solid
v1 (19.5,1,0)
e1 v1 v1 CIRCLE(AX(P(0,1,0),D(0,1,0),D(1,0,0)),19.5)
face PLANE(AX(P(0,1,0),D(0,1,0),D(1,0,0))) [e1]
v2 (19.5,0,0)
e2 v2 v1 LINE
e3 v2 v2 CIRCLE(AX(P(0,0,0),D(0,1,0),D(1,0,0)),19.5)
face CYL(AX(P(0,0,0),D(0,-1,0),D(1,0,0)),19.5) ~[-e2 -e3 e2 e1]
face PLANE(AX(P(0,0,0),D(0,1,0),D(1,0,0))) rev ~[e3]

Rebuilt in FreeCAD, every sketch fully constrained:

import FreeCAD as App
import Part
import Sketcher
from FreeCAD import Vector
Q = App.Units.Quantity

doc = App.newDocument("Part")
params = doc.addObject("Spreadsheet::Sheet", "Params")
for row, (alias, value) in enumerate([
    ("sketch1_diameter", "39 mm"),
    ("pad1_length", "1 mm"),
], start=1):
    params.set(f"A{row}", alias)
    params.set(f"B{row}", "=" + value)
    params.setAlias(f"B{row}", alias)

body = doc.addObject("PartDesign::Body", "Body")

# Sketch on XZ plane
sketch1 = doc.addObject("Sketcher::SketchObject", "Sketch")
body.addObject(sketch1)
sketch1.AttachmentSupport = (doc.XZ_Plane, [""])
sketch1.MapMode = "FlatFace"
sketch1.addGeometry(Part.Circle(Vector(0, 0, 0), Vector(0, 0, 1), 20), False)
sketch1.addConstraint([
    Sketcher.Constraint("Coincident", 0, 3, -1, 1),
    Sketcher.Constraint("Diameter", 0, Q("39 mm")),
])
sketch1.setExpression("Constraints[1]", "Params.sketch1_diameter")
pad1 = doc.addObject("PartDesign::Pad", "Pad")
body.addObject(pad1)
pad1.Profile = sketch1
pad1.setExpression("Length", "Params.pad1_length")
pad1.Reversed = True

doc.recompute()
